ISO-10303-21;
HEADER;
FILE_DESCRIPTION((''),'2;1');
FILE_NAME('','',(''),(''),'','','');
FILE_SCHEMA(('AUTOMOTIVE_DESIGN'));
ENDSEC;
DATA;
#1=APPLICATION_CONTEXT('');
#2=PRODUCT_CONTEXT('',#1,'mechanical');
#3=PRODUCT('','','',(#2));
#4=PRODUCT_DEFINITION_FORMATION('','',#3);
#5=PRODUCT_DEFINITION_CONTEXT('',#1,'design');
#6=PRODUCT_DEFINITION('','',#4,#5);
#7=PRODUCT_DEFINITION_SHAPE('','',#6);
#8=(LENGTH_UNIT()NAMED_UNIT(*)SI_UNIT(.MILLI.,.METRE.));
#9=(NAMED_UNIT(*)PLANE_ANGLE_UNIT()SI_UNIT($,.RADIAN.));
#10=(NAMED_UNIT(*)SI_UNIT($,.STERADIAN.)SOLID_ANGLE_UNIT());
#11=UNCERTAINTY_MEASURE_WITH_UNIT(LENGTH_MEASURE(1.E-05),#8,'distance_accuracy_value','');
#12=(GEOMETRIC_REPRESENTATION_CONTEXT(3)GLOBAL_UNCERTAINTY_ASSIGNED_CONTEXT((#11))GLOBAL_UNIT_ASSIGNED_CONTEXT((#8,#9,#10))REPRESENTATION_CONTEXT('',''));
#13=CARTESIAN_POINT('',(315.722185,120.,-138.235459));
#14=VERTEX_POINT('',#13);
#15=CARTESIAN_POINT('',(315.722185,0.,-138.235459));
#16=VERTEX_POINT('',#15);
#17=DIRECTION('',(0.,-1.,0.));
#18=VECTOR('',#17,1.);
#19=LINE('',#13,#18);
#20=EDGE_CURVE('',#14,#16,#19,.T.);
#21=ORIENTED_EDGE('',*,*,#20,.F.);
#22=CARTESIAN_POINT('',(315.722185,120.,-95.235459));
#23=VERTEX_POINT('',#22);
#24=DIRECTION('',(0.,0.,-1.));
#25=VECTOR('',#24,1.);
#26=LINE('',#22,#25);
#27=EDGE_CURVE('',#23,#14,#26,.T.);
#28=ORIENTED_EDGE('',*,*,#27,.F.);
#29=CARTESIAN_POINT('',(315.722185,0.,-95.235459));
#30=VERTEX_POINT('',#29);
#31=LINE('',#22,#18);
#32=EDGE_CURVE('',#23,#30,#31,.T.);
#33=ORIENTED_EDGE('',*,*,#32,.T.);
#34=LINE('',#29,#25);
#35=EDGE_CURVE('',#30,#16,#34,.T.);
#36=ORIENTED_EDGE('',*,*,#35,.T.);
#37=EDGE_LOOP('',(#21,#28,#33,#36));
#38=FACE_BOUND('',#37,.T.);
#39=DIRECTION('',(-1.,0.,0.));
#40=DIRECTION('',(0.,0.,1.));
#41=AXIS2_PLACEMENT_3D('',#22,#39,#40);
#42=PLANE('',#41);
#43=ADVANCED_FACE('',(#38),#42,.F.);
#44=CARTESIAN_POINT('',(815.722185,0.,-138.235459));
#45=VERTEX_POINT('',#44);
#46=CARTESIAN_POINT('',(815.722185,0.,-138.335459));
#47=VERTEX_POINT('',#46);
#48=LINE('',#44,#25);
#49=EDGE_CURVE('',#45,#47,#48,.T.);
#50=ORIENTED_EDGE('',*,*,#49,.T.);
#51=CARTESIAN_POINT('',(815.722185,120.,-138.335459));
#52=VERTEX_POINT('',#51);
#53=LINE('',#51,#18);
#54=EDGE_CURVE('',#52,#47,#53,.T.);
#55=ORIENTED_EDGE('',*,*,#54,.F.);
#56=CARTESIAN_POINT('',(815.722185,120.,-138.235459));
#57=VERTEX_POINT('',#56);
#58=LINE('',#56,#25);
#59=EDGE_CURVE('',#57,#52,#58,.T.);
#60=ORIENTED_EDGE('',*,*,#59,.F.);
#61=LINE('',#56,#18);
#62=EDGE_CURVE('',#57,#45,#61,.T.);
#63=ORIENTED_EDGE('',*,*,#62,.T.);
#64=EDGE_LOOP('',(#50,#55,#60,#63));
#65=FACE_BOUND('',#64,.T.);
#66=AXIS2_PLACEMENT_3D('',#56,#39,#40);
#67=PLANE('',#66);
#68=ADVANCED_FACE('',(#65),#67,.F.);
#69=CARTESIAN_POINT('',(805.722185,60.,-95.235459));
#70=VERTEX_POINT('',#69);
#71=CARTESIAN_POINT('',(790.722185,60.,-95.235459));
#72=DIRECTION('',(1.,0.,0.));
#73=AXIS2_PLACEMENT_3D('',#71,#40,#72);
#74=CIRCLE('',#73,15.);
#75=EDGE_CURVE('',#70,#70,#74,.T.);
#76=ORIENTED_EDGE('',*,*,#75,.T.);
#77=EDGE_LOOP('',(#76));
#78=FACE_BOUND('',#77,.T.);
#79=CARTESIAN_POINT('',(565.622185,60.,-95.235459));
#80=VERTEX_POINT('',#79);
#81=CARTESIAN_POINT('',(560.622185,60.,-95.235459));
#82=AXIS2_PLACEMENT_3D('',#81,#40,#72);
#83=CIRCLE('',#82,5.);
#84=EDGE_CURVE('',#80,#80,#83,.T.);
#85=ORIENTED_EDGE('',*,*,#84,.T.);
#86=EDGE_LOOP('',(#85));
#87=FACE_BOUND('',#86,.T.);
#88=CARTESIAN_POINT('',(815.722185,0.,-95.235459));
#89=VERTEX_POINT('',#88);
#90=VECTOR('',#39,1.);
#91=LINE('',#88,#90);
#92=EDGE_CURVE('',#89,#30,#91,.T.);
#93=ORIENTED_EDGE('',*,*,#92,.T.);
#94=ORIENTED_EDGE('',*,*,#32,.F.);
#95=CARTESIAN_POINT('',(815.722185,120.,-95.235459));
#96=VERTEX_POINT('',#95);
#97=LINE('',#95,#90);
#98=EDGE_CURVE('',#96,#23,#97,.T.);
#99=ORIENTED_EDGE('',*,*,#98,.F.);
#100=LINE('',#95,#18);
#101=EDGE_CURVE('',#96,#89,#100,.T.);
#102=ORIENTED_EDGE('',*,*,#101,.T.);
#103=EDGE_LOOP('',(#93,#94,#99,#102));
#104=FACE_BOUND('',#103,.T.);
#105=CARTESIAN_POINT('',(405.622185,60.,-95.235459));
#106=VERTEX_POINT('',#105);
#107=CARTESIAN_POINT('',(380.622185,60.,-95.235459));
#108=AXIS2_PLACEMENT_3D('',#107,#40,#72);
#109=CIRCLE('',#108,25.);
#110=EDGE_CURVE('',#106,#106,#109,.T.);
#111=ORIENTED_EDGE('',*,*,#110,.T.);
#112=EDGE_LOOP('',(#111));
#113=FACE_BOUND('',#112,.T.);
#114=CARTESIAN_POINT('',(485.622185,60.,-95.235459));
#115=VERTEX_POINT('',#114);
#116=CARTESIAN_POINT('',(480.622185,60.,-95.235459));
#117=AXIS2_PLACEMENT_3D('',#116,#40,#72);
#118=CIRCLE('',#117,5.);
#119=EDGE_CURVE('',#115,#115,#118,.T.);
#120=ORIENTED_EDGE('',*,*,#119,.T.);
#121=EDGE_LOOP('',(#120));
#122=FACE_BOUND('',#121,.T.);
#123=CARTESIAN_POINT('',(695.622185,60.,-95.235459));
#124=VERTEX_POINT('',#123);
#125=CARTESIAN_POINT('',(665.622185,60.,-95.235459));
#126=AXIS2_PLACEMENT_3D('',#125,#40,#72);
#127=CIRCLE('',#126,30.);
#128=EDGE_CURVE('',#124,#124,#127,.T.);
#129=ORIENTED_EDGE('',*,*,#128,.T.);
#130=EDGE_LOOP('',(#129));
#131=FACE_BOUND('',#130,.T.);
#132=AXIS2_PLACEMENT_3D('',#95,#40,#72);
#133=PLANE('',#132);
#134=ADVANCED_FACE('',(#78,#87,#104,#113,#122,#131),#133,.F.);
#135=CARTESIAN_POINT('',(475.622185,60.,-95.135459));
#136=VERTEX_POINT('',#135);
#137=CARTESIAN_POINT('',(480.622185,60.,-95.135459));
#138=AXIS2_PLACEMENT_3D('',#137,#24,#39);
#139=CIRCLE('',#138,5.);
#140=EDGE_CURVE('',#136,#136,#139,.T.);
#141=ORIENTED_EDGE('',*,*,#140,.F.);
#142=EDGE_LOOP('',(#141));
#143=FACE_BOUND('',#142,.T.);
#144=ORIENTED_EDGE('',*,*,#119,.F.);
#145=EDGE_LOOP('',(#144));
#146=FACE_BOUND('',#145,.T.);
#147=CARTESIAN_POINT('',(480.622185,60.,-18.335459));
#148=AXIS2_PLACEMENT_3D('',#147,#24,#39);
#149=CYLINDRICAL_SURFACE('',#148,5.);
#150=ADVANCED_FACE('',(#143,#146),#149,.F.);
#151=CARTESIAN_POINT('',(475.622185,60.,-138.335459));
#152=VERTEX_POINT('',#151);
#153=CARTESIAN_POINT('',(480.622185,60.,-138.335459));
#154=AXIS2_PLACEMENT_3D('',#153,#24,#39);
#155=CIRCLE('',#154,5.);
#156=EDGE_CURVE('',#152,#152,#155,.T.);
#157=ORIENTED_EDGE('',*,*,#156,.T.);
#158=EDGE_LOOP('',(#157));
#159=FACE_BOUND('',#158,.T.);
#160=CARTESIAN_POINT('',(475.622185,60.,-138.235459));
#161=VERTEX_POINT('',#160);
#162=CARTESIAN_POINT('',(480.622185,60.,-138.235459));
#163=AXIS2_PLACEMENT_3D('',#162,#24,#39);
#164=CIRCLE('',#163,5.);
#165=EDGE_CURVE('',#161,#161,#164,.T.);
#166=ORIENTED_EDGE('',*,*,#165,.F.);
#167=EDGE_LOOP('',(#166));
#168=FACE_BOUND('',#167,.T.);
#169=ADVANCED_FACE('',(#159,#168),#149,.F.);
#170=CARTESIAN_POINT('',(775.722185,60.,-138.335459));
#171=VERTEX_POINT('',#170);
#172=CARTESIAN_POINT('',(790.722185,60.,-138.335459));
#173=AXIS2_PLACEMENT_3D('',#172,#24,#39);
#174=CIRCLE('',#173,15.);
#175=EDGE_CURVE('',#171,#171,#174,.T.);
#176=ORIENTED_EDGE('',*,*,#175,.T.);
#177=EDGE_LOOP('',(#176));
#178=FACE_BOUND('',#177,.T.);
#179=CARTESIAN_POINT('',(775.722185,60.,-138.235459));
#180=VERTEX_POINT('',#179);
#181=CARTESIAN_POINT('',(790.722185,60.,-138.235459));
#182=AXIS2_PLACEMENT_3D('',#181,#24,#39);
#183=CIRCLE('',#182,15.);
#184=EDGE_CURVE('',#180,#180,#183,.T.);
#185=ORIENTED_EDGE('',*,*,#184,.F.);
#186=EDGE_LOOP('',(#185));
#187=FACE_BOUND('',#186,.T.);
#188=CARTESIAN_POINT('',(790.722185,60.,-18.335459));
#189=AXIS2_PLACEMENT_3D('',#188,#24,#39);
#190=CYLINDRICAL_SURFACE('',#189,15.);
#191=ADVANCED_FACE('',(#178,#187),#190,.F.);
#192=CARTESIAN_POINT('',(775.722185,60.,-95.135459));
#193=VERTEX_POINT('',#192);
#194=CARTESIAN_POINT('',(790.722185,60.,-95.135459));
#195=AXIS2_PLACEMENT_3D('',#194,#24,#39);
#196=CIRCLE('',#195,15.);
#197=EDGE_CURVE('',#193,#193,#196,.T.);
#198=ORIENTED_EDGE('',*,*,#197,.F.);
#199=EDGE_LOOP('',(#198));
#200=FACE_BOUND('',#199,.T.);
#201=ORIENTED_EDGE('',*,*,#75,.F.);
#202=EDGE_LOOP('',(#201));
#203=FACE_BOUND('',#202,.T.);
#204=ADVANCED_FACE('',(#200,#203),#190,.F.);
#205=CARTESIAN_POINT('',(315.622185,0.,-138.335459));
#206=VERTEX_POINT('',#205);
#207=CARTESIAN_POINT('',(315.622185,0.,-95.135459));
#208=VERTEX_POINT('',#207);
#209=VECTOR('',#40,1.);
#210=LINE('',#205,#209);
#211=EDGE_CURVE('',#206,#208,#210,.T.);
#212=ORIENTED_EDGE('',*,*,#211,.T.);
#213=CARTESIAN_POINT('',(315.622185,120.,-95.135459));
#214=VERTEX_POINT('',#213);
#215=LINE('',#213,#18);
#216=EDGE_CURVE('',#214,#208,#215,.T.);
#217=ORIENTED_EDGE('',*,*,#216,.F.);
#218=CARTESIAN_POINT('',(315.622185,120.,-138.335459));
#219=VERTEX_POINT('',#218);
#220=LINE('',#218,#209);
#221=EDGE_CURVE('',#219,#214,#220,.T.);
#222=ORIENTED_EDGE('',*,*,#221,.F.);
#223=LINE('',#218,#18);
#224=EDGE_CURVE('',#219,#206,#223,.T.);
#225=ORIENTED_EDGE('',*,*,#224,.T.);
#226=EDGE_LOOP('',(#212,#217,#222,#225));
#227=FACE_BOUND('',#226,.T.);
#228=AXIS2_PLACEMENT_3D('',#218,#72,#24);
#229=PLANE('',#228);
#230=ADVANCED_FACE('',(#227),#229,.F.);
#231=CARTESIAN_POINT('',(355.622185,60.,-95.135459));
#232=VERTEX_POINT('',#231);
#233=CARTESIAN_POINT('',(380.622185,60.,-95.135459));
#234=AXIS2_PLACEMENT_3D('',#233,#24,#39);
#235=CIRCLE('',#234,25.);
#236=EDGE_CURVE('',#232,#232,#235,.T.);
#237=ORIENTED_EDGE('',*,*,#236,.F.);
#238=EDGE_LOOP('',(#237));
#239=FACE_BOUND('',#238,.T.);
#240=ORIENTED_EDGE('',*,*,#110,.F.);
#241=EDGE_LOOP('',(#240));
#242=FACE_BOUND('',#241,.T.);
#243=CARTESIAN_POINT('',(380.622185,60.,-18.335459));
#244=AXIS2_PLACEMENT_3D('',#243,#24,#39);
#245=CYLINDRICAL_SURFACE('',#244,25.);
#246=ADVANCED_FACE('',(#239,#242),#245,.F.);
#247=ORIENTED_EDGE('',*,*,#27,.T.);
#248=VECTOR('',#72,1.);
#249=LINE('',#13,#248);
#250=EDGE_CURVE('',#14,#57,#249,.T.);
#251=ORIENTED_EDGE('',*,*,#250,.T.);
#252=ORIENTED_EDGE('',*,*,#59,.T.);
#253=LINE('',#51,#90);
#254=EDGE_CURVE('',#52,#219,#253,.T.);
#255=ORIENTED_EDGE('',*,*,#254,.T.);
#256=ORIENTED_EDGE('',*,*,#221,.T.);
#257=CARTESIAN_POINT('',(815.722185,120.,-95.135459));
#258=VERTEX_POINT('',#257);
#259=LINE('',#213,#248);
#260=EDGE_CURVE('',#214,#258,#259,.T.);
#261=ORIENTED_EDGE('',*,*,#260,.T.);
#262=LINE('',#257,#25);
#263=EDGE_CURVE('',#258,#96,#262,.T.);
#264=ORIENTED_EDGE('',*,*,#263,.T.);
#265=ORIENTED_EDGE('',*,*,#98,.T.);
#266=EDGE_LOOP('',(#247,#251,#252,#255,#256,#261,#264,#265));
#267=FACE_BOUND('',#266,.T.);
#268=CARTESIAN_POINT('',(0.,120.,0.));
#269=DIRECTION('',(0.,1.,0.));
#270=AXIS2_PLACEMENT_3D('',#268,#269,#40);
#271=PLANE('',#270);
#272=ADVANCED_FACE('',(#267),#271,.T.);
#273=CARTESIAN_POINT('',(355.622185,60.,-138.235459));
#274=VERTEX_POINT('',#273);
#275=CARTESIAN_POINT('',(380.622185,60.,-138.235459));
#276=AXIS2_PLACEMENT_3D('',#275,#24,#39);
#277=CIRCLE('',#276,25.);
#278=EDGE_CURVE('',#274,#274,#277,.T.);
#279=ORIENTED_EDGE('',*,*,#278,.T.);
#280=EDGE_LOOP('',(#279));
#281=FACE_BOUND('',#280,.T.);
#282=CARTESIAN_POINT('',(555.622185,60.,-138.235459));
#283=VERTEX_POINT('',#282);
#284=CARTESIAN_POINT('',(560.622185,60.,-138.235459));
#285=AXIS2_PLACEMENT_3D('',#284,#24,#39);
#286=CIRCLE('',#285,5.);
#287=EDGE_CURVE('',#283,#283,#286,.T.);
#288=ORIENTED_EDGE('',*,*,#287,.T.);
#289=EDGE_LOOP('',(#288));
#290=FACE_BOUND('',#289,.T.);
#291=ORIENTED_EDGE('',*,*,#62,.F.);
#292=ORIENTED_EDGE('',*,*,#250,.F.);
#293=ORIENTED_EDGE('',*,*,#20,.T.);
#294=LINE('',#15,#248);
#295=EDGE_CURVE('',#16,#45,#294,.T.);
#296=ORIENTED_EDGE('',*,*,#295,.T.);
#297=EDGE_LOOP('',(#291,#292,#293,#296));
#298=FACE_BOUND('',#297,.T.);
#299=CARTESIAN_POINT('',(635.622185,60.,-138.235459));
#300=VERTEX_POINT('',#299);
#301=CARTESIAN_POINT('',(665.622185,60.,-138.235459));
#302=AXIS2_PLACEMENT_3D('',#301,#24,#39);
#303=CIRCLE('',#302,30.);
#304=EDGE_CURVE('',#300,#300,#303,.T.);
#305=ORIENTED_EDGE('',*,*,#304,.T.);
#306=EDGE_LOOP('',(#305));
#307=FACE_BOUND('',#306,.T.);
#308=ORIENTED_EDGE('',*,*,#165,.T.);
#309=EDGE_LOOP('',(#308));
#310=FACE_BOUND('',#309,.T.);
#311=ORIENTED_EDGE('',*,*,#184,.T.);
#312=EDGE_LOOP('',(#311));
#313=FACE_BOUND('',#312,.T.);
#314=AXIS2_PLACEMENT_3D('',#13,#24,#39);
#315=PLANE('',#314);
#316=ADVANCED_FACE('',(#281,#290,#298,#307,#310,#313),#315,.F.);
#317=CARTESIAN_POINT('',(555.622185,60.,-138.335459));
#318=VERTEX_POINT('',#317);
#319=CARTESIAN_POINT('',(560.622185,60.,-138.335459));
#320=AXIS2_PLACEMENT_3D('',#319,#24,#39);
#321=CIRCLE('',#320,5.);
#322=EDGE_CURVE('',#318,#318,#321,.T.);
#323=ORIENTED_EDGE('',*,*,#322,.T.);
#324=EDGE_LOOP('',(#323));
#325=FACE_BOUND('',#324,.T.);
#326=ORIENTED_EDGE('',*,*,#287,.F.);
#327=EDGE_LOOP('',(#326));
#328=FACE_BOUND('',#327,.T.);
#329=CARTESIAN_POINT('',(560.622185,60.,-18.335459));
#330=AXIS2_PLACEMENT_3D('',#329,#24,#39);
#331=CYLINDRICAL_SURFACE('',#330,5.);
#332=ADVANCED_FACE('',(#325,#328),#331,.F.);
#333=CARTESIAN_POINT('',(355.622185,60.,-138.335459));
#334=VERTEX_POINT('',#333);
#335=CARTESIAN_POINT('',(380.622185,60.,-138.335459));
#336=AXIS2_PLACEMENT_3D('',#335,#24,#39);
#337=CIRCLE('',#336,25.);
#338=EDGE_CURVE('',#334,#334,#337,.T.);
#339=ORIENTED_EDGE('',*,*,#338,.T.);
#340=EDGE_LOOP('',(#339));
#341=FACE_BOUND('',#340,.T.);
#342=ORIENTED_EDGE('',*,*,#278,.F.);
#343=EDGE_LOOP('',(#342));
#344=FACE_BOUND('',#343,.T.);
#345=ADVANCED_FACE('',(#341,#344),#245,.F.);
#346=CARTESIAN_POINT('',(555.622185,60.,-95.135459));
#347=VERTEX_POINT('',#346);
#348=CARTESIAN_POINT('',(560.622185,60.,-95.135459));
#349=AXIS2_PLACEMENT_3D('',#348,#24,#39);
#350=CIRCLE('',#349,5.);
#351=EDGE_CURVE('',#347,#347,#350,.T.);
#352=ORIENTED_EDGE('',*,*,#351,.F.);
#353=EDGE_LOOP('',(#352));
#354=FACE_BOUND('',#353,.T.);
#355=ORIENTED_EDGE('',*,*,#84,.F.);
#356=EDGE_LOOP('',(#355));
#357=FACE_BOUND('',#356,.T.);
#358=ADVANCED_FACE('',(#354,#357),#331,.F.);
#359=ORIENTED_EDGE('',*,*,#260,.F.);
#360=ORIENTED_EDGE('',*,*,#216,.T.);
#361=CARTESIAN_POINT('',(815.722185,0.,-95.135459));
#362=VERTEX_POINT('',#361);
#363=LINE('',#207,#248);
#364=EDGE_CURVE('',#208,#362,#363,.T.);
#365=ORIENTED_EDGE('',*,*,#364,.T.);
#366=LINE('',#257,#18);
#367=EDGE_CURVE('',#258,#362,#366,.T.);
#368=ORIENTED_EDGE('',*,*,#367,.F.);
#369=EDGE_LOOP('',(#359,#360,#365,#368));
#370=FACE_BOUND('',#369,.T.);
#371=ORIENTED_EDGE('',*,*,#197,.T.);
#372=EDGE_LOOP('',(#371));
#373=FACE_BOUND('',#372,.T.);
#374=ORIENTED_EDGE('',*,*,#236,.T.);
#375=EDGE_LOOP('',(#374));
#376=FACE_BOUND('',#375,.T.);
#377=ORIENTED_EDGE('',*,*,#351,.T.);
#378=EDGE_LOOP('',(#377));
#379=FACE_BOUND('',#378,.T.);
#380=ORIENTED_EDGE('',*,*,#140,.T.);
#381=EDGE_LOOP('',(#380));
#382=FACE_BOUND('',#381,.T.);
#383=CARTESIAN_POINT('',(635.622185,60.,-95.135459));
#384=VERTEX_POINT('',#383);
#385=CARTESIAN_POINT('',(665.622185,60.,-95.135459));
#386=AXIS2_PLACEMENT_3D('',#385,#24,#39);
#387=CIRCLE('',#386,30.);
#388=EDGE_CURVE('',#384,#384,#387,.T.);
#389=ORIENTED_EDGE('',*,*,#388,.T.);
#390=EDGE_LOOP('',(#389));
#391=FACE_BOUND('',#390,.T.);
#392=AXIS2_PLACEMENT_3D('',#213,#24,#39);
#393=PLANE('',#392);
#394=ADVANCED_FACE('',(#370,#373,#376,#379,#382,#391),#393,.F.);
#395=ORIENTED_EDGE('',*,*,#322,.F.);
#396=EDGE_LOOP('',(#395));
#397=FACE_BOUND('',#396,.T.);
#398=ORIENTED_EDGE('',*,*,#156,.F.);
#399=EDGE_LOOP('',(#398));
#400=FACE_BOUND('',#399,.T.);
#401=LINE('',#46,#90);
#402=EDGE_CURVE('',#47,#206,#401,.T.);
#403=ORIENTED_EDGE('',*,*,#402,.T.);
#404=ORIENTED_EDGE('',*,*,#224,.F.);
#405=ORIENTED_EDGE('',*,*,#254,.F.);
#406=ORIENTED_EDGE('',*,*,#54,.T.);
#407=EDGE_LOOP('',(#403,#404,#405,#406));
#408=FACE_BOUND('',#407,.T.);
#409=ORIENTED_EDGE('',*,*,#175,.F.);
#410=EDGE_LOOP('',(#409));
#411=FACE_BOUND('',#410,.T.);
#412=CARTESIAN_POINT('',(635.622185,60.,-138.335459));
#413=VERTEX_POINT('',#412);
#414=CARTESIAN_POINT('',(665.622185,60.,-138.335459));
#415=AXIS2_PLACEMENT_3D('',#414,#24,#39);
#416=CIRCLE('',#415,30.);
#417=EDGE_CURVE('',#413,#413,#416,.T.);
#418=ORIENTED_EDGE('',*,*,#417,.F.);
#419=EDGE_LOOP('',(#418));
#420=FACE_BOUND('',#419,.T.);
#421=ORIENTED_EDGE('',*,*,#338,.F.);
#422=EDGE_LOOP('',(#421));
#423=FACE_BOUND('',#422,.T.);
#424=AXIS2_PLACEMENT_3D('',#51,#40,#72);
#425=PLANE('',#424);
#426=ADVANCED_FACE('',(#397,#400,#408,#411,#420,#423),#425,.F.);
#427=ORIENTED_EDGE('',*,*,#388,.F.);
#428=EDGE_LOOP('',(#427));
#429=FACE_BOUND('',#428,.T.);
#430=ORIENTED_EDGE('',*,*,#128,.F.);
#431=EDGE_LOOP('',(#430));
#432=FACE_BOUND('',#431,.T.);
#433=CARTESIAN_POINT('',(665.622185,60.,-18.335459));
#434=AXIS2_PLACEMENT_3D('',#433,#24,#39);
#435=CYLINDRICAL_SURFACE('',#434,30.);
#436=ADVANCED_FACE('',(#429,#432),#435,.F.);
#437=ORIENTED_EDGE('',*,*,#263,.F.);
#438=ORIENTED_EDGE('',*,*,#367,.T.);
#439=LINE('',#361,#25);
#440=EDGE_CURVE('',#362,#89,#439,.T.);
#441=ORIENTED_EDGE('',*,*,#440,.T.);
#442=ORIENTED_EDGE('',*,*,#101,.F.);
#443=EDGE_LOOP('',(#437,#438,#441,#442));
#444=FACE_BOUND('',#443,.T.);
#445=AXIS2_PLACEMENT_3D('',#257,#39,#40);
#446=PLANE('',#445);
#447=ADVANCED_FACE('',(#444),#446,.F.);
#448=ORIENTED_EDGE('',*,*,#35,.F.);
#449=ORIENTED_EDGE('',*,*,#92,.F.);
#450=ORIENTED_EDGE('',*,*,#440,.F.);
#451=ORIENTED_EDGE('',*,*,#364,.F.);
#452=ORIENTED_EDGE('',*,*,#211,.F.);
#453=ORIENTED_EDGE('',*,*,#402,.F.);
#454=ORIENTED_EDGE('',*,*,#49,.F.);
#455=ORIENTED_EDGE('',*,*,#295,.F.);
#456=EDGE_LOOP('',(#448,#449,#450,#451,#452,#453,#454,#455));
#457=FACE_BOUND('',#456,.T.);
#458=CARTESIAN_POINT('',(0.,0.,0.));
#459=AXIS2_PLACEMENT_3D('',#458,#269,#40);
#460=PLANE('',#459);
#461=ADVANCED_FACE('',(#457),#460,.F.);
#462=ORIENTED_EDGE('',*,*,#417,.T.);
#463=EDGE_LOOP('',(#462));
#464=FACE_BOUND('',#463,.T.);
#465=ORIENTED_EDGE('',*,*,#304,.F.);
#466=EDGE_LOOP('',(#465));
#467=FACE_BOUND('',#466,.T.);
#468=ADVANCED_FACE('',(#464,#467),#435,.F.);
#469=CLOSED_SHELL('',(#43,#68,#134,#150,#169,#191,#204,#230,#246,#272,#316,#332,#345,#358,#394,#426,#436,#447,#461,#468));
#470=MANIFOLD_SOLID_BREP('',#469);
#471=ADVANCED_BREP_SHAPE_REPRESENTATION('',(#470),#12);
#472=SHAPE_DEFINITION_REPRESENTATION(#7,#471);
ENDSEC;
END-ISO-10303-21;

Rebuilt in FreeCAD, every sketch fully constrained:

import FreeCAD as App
import Part
import Sketcher

V = App.Vector


def add_polygon(sketch, points):
    """Adds a closed chain of lines whose ends are joined by coincident constraints."""
    first, n = sketch.GeometryCount, len(points)
    for a, b in zip(points, points[1:] + points[:1]):
        sketch.addGeometry(Part.LineSegment(App.Vector(*a, 0), App.Vector(*b, 0)), False)
    for i in range(n):
        sketch.addConstraint(Sketcher.Constraint("Coincident", first + i, 2, first + (i + 1) % n, 1))

doc = App.newDocument("Part")
body = doc.addObject("PartDesign::Body", "Body")

# Sketch on XZ plane
sketch1 = body.newObject("Sketcher::SketchObject", "Sketch")
sketch1.AttachmentSupport = (doc.getObject("XZ_Plane"), [""])
sketch1.MapMode = "FlatFace"
add_polygon(sketch1, [(815.72, -138.34), (315.62, -138.34), (315.62, -95.14), (815.72, -95.14), (815.72, -95.24), (315.72, -95.24), (315.72, -138.24), (815.72, -138.24)])  # lines 0-7
sketch1.addConstraint(Sketcher.Constraint("Horizontal", 0))
sketch1.addConstraint(Sketcher.Constraint("Vertical", 1))
sketch1.addConstraint(Sketcher.Constraint("Horizontal", 2))
sketch1.addConstraint(Sketcher.Constraint("Vertical", 3))
sketch1.addConstraint(Sketcher.Constraint("Horizontal", 4))
sketch1.addConstraint(Sketcher.Constraint("Vertical", 5))
sketch1.addConstraint(Sketcher.Constraint("Horizontal", 6))
sketch1.addConstraint(Sketcher.Constraint("Vertical", 7))
sketch1.addConstraint(Sketcher.Constraint("Vertical", 3, 2, 6, 2))
sketch1.addConstraint(Sketcher.Constraint("Equal", 3, 7))
sketch1.addConstraint(Sketcher.Constraint("DistanceX", 4, 2, 4, 1, 500.0))
sketch1.addConstraint(Sketcher.Constraint("DistanceY", 5, 2, 5, 1, 43.0))
sketch1.addConstraint(Sketcher.Constraint("DistanceX", 0, 2, 0, 1, 500.1))
sketch1.addConstraint(Sketcher.Constraint("DistanceY", 1, 1, 1, 2, 43.2))
sketch1.addConstraint(Sketcher.Constraint("DistanceY", 0, 2, -1, 1, 138.335459))
sketch1.addConstraint(Sketcher.Constraint("DistanceX", -1, 1, 0, 2, 315.622185))
pad1 = body.newObject("PartDesign::Pad", "Pad")
pad1.Profile = sketch1
pad1.Length = 120
pad1.Reversed = True

# Sketch on XY plane
sketch2 = body.newObject("Sketcher::SketchObject", "Sketch001")
sketch2.AttachmentSupport = (doc.getObject("XY_Plane"), [""])
sketch2.MapMode = "FlatFace"
sketch2.AttachmentOffset = App.Placement(V(0, 0, -138.335459), App.Rotation())
sketch2.addGeometry(Part.Circle(V(381, 60, 0), V(0, 0, 1), 25), False)
sketch2.addGeometry(Part.Circle(V(481, 60, 0), V(0, 0, 1), 5), False)
sketch2.addGeometry(Part.Circle(V(561, 60, 0), V(0, 0, 1), 5), False)
sketch2.addGeometry(Part.Circle(V(666, 60, 0), V(0, 0, 1), 30), False)
sketch2.addGeometry(Part.Circle(V(791, 60, 0), V(0, 0, 1), 15), False)
sketch2.addConstraint(Sketcher.Constraint("Equal", 1, 2))
sketch2.addConstraint(Sketcher.Constraint("Horizontal", 0, 3, 1, 3))
sketch2.addConstraint(Sketcher.Constraint("Horizontal", 1, 3, 2, 3))
sketch2.addConstraint(Sketcher.Constraint("Horizontal", 2, 3, 3, 3))
sketch2.addConstraint(Sketcher.Constraint("Horizontal", 3, 3, 4, 3))
sketch2.addConstraint(Sketcher.Constraint("Diameter", 0, 50.0))
sketch2.addConstraint(Sketcher.Constraint("Diameter", 1, 10.0))
sketch2.addConstraint(Sketcher.Constraint("Diameter", 3, 60.0))
sketch2.addConstraint(Sketcher.Constraint("Diameter", 4, 30.0))
sketch2.addConstraint(Sketcher.Constraint("DistanceY", -1, 1, 0, 3, 60.0))
sketch2.addConstraint(Sketcher.Constraint("DistanceX", 0, 3, 1, 3, 100.0))
sketch2.addConstraint(Sketcher.Constraint("DistanceX", 1, 3, 2, 3, 80.0))
sketch2.addConstraint(Sketcher.Constraint("DistanceX", 2, 3, 3, 3, 105.0))
sketch2.addConstraint(Sketcher.Constraint("DistanceX", 3, 3, 4, 3, 125.1))
sketch2.addConstraint(Sketcher.Constraint("DistanceX", -1, 1, 0, 3, 380.622185))
pocket1 = body.newObject("PartDesign::Pocket", "Pocket")
pocket1.Profile = sketch2
pocket1.Length = 120
pocket1.Reversed = True

doc.recompute()
